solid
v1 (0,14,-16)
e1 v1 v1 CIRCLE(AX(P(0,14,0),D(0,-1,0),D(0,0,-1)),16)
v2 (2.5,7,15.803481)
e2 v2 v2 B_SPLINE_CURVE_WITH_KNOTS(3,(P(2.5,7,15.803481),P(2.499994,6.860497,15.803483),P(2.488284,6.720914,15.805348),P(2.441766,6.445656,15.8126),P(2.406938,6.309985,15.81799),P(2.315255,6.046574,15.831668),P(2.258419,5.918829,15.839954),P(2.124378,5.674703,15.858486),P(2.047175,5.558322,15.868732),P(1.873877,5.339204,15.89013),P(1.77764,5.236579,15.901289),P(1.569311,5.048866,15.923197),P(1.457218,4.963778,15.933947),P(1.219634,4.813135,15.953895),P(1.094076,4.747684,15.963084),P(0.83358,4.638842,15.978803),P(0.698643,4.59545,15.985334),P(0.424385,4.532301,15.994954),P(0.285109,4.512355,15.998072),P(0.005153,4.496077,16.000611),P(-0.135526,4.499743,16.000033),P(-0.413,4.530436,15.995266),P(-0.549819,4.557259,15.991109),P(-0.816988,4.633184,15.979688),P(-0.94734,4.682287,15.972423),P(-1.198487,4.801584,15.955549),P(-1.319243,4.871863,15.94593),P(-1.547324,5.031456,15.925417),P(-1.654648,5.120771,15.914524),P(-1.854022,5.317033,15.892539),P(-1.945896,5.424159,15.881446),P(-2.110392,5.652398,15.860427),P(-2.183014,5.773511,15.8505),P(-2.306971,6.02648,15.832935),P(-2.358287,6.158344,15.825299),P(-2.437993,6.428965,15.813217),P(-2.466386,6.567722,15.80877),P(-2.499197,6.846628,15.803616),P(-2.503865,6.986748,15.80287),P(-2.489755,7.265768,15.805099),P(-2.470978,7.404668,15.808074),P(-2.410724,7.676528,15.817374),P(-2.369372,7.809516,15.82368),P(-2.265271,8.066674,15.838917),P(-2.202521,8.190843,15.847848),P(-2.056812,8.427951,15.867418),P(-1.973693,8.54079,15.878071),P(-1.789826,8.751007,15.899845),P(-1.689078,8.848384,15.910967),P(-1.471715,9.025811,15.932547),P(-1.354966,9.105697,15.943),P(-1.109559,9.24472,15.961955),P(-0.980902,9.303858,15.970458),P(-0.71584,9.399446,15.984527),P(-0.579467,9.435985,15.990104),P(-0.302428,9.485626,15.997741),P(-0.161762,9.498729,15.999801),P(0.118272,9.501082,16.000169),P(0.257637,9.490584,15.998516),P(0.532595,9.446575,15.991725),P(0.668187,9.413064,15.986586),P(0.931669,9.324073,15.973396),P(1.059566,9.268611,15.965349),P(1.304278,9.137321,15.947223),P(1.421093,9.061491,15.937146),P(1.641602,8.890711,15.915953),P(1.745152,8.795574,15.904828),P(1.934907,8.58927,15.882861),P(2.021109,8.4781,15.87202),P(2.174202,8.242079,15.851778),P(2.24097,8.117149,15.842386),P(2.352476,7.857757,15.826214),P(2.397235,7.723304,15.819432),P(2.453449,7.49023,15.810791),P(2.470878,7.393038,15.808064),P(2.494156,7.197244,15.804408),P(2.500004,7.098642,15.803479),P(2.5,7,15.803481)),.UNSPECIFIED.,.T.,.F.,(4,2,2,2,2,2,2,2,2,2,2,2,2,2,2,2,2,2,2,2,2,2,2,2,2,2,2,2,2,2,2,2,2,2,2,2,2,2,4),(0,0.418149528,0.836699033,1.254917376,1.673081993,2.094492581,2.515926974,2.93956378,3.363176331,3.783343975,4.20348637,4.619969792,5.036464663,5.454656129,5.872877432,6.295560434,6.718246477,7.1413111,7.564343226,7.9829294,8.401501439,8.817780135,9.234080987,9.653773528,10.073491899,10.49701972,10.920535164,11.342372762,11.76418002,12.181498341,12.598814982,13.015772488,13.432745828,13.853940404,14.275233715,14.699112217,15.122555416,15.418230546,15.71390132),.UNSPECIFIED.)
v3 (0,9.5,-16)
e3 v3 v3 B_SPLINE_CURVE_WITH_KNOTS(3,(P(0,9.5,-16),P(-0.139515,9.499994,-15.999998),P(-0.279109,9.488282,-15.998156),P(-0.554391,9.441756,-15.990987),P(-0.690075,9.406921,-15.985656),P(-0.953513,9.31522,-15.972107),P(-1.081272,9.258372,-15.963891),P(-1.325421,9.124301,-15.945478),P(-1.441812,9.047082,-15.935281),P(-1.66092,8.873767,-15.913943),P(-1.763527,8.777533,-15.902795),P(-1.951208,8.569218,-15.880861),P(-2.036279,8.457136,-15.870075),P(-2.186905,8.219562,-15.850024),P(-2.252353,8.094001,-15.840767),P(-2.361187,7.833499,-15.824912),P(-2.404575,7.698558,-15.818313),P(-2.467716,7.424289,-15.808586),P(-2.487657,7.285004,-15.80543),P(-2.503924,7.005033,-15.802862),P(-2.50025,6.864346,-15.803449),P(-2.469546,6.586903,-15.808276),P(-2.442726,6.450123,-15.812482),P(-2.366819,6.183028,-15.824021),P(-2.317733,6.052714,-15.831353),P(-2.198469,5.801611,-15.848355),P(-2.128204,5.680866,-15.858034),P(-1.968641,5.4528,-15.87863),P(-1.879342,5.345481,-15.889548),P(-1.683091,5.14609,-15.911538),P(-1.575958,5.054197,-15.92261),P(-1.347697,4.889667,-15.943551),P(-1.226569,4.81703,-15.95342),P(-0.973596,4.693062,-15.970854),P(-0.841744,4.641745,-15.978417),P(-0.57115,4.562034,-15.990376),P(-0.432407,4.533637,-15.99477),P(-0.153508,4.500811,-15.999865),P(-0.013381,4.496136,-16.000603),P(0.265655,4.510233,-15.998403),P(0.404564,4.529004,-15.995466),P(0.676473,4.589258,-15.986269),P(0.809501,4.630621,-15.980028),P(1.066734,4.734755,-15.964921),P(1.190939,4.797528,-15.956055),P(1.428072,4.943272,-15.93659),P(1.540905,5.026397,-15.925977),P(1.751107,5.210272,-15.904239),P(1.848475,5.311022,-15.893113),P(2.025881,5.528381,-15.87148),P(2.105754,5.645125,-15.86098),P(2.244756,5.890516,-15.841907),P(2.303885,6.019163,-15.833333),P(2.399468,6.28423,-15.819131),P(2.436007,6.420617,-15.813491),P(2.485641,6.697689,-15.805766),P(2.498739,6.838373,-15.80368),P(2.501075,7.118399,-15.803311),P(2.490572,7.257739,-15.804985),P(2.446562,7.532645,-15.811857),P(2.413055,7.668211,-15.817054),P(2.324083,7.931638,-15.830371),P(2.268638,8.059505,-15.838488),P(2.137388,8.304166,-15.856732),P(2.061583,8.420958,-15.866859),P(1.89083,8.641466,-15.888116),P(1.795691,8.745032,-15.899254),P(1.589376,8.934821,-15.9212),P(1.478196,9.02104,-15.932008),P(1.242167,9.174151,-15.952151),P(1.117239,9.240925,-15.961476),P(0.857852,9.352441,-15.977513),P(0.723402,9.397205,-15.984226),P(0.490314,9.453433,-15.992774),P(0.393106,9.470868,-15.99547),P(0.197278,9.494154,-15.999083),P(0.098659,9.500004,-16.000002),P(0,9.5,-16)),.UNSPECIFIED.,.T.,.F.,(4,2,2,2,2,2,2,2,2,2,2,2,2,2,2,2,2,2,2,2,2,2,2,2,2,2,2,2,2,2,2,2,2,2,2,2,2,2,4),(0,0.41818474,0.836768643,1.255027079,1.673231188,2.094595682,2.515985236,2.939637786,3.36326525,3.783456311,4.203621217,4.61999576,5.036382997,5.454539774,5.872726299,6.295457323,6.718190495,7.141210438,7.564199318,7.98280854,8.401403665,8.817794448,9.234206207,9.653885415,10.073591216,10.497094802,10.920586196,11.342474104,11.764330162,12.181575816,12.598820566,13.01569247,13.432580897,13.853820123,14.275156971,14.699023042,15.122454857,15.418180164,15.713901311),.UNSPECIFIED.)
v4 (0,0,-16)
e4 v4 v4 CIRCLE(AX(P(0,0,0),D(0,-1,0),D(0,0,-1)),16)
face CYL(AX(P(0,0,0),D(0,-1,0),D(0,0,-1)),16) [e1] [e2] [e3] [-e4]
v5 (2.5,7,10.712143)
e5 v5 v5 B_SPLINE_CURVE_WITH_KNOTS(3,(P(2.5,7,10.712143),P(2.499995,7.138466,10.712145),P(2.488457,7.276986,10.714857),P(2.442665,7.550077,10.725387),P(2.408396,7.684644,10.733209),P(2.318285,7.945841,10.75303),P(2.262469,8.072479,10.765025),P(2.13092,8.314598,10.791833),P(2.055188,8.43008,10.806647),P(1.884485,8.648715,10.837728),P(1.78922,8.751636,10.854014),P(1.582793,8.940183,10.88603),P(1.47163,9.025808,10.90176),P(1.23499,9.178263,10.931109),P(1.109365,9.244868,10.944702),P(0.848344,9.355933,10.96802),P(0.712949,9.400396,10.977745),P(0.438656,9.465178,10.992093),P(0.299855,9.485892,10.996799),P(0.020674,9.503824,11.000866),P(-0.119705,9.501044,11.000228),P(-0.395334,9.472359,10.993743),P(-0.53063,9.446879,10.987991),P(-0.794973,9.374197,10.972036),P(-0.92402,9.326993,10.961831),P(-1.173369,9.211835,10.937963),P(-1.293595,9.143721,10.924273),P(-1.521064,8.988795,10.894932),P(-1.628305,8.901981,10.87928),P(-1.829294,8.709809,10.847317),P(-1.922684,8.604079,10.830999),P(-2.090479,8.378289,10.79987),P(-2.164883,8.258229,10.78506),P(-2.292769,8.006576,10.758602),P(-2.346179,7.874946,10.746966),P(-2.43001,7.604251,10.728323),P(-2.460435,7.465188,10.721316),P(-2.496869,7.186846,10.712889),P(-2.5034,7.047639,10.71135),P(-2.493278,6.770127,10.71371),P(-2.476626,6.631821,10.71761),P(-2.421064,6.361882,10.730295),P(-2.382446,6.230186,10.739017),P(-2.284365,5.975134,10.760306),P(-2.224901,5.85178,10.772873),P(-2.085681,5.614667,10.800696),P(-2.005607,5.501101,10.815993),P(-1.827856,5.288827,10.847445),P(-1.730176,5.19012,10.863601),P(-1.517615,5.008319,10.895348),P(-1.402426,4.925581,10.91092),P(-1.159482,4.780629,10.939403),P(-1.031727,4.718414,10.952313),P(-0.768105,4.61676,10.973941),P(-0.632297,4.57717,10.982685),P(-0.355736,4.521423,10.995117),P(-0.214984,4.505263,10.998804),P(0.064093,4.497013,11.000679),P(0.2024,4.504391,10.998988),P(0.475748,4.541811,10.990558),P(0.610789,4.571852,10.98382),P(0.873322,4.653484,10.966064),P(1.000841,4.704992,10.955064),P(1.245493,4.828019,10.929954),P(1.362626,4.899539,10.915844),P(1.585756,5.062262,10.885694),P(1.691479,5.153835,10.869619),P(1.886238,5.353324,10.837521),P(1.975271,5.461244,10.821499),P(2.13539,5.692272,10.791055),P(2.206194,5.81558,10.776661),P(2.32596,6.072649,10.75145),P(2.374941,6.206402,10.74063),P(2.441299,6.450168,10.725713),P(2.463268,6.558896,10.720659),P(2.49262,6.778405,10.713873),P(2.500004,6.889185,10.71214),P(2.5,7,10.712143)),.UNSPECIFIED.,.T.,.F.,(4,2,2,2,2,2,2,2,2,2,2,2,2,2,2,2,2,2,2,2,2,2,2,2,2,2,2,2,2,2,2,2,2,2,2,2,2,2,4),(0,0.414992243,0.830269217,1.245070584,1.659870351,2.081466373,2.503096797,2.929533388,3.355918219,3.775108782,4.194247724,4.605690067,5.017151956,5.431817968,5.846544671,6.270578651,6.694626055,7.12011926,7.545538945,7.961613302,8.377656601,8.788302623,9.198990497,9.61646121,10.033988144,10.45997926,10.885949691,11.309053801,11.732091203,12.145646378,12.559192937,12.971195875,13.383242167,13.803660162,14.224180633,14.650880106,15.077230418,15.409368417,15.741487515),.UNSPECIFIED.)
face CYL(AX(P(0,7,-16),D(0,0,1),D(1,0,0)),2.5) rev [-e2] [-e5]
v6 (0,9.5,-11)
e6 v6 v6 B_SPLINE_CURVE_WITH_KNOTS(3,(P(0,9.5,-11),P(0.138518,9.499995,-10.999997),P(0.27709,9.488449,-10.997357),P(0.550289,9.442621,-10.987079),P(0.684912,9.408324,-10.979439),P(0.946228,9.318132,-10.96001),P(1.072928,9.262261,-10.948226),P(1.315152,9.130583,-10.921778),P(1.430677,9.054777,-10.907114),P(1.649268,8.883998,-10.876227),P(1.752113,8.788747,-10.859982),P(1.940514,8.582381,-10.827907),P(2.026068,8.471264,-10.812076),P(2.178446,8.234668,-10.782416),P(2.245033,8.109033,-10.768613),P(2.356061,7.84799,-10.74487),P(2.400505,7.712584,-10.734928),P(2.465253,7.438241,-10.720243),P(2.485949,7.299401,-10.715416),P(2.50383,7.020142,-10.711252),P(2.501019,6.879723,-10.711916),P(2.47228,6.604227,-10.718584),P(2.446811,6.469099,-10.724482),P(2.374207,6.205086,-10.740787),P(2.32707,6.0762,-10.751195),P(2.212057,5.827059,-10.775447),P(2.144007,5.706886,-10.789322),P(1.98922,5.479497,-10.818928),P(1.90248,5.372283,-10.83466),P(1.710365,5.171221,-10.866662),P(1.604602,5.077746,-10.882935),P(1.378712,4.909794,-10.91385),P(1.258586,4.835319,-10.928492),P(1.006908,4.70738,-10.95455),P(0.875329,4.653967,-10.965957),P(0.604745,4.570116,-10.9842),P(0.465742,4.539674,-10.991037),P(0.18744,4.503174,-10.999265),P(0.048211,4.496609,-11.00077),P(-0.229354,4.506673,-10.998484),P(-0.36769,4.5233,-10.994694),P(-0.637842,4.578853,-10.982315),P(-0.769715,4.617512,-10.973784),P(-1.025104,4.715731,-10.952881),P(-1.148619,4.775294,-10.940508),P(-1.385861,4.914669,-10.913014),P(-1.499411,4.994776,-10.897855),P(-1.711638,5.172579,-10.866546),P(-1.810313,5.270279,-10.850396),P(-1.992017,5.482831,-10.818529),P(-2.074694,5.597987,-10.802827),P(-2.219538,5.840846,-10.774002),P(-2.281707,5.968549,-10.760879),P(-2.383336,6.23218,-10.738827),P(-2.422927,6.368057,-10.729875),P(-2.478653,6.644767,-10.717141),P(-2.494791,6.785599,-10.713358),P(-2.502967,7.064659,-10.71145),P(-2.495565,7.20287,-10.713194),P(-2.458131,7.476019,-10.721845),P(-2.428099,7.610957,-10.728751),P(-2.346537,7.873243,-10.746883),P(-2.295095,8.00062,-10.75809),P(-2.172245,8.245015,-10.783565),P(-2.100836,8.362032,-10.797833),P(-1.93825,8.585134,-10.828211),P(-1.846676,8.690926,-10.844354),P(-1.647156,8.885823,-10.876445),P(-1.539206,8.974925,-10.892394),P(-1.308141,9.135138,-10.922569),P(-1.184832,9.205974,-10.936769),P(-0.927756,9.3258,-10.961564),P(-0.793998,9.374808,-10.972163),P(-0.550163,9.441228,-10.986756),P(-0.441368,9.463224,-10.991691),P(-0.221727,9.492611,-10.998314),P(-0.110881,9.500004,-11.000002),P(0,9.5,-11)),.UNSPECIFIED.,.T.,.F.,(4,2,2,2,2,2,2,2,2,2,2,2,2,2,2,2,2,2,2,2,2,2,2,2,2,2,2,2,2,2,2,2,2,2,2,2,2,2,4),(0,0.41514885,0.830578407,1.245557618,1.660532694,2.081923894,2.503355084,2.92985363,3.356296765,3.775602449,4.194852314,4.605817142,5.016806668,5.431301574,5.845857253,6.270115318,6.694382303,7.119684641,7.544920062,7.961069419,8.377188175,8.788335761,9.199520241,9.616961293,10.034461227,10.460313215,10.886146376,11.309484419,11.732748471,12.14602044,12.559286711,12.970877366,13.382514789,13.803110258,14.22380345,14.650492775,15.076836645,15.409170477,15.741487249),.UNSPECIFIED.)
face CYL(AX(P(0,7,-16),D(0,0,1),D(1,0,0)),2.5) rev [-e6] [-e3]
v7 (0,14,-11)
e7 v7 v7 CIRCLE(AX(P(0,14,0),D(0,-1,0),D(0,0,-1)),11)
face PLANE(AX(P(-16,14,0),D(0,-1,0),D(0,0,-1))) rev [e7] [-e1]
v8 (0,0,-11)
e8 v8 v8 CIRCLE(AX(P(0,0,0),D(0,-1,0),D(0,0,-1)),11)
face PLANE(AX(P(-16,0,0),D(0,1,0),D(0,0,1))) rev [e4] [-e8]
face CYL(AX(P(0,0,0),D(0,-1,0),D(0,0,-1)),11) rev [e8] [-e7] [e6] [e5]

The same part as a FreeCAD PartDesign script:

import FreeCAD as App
import Part
import Sketcher

V = App.Vector

doc = App.newDocument("Part")
body = doc.addObject("PartDesign::Body", "Body")

sketch1 = body.newObject("Sketcher::SketchObject", "Sketch")
sketch1.AttachmentSupport = (doc.getObject("XY_Plane"), [""])
sketch1.MapMode = "FlatFace"
sketch1.addGeometry(Part.LineSegment(V(-16, 14, 0), V(-16, 0, 0)), False)
sketch1.addGeometry(Part.LineSegment(V(-16, 0, 0), V(-11, 0, 0)), False)
sketch1.addGeometry(Part.LineSegment(V(-11, 0, 0), V(-11, 14, 0)), False)
sketch1.addGeometry(Part.LineSegment(V(-11, 14, 0), V(-16, 14, 0)), False)
sketch1.addConstraint(Sketcher.Constraint("Coincident", 0, 2, 1, 1))
sketch1.addConstraint(Sketcher.Constraint("Coincident", 1, 2, 2, 1))
sketch1.addConstraint(Sketcher.Constraint("Coincident", 2, 2, 3, 1))
sketch1.addConstraint(Sketcher.Constraint("Coincident", 3, 2, 0, 1))
sketch1.addConstraint(Sketcher.Constraint("Vertical", 0))
sketch1.addConstraint(Sketcher.Constraint("Horizontal", 1))
sketch1.addConstraint(Sketcher.Constraint("Vertical", 2))
sketch1.addConstraint(Sketcher.Constraint("Horizontal", 3))
sketch1.addConstraint(Sketcher.Constraint("PointOnObject", 0, 2, -1))
sketch1.addConstraint(Sketcher.Constraint("DistanceX", 1, 1, 1, 2, 5.0))
sketch1.addConstraint(Sketcher.Constraint("DistanceY", 0, 2, 0, 1, 14.0))
sketch1.addConstraint(Sketcher.Constraint("DistanceX", 0, 2, -1, 1, 16.0))
revolution = body.newObject("PartDesign::Revolution", "Revolution")
revolution.Profile = sketch1
revolution.ReferenceAxis = (sketch1, ["V_Axis"])
revolution.Angle = 360

sketch2 = body.newObject("Sketcher::SketchObject", "Sketch001")
sketch2.AttachmentSupport = (doc.getObject("XY_Plane"), [""])
sketch2.MapMode = "FlatFace"
sketch2.addGeometry(Part.Circle(V(0, 7, 0), V(0, 0, 1), 2.5), False)
sketch2.addConstraint(Sketcher.Constraint("PointOnObject", 0, 3, -2))
sketch2.addConstraint(Sketcher.Constraint("Diameter", 0, 5.0))
sketch2.addConstraint(Sketcher.Constraint("DistanceY", -1, 1, 0, 3, 7.0))
pocket1 = body.newObject("PartDesign::Pocket", "Pocket")
pocket1.Profile = sketch2
pocket1.Type = "ThroughAll"
pocket1.Midplane = True

doc.recompute()
